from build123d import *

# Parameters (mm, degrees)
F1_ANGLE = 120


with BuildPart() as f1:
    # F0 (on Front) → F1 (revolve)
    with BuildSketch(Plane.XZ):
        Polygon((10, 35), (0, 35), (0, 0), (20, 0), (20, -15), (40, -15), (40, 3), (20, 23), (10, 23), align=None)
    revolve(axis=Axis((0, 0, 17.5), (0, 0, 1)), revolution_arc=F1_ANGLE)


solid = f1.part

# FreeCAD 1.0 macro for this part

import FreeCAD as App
import Part
import Sketcher
from FreeCAD import Vector


def add_polygon(sketch, points):
    """Adds a closed chain of lines whose ends are joined by coincident constraints."""
    first, n = sketch.GeometryCount, len(points)
    for a, b in zip(points, points[1:] + points[:1]):
        sketch.addGeometry(Part.LineSegment(App.Vector(*a, 0), App.Vector(*b, 0)), False)
    for i in range(n):
        sketch.addConstraint(Sketcher.Constraint("Coincident", first + i, 2, first + (i + 1) % n, 1))

doc = App.newDocument("Part")
params = doc.addObject("Spreadsheet::Sheet", "Params")
for row, (alias, value) in enumerate([
    ("sketch1_width", "10 mm"),
    ("sketch1_height", "35 mm"),
    ("sketch1_height2", "15 mm"),
    ("sketch1_height3", "18 mm"),
    ("sketch1_height4", "12 mm"),
    ("revolution_angle", "120 deg"),
], start=1):
    params.set(f"A{row}", alias)
    params.set(f"B{row}", "=" + value)
    params.setAlias(f"B{row}", alias)

body = doc.addObject("PartDesign::Body", "Body")

sketch1 = body.newObject("Sketcher::SketchObject", "Sketch")
sketch1.AttachmentSupport = (doc.getObject("XZ_Plane"), [""])
sketch1.MapMode = "FlatFace"
add_polygon(sketch1, [(10, 35), (0, 35), (0, 0), (20, 0), (20, -15), (40, -15), (40, 3), (20, 23), (10, 23)])
sketch1.addConstraint([
    Sketcher.Constraint("Horizontal", 0),
    Sketcher.Constraint("Vertical", 1),
    Sketcher.Constraint("Horizontal", 2),
    Sketcher.Constraint("Vertical", 3),
    Sketcher.Constraint("Horizontal", 4),
    Sketcher.Constraint("Vertical", 5),
    Sketcher.Constraint("Horizontal", 7),
    Sketcher.Constraint("Vertical", 8),
    Sketcher.Constraint("Coincident", 1, 2, -1, 1),
    Sketcher.Constraint("Vertical", 3, 2, 6, 2),
    Sketcher.Constraint("Equal", 2, 4),
    Sketcher.Constraint("Equal", 0, 7),
    Sketcher.Constraint("DistanceX", 0, 2, 0, 1, 10.0),
    Sketcher.Constraint("DistanceY", 1, 2, 1, 1, 35.0),
    Sketcher.Constraint("DistanceY", 3, 2, 3, 1, 15.0),
    Sketcher.Constraint("DistanceY", 5, 1, 5, 2, 18.0),
    Sketcher.Constraint("DistanceY", 8, 1, 8, 2, 12.0),
])
sketch1.setExpression("Constraints[21]", "Params.sketch1_width")
sketch1.setExpression("Constraints[22]", "Params.sketch1_height")
sketch1.setExpression("Constraints[23]", "Params.sketch1_height2")
sketch1.setExpression("Constraints[24]", "Params.sketch1_height3")
sketch1.setExpression("Constraints[25]", "Params.sketch1_height4")
revolution = body.newObject("PartDesign::Revolution", "Revolution")
revolution.Profile = sketch1
revolution.ReferenceAxis = (sketch1, ["V_Axis"])
revolution.setExpression("Angle", "Params.revolution_angle")

doc.recompute()
